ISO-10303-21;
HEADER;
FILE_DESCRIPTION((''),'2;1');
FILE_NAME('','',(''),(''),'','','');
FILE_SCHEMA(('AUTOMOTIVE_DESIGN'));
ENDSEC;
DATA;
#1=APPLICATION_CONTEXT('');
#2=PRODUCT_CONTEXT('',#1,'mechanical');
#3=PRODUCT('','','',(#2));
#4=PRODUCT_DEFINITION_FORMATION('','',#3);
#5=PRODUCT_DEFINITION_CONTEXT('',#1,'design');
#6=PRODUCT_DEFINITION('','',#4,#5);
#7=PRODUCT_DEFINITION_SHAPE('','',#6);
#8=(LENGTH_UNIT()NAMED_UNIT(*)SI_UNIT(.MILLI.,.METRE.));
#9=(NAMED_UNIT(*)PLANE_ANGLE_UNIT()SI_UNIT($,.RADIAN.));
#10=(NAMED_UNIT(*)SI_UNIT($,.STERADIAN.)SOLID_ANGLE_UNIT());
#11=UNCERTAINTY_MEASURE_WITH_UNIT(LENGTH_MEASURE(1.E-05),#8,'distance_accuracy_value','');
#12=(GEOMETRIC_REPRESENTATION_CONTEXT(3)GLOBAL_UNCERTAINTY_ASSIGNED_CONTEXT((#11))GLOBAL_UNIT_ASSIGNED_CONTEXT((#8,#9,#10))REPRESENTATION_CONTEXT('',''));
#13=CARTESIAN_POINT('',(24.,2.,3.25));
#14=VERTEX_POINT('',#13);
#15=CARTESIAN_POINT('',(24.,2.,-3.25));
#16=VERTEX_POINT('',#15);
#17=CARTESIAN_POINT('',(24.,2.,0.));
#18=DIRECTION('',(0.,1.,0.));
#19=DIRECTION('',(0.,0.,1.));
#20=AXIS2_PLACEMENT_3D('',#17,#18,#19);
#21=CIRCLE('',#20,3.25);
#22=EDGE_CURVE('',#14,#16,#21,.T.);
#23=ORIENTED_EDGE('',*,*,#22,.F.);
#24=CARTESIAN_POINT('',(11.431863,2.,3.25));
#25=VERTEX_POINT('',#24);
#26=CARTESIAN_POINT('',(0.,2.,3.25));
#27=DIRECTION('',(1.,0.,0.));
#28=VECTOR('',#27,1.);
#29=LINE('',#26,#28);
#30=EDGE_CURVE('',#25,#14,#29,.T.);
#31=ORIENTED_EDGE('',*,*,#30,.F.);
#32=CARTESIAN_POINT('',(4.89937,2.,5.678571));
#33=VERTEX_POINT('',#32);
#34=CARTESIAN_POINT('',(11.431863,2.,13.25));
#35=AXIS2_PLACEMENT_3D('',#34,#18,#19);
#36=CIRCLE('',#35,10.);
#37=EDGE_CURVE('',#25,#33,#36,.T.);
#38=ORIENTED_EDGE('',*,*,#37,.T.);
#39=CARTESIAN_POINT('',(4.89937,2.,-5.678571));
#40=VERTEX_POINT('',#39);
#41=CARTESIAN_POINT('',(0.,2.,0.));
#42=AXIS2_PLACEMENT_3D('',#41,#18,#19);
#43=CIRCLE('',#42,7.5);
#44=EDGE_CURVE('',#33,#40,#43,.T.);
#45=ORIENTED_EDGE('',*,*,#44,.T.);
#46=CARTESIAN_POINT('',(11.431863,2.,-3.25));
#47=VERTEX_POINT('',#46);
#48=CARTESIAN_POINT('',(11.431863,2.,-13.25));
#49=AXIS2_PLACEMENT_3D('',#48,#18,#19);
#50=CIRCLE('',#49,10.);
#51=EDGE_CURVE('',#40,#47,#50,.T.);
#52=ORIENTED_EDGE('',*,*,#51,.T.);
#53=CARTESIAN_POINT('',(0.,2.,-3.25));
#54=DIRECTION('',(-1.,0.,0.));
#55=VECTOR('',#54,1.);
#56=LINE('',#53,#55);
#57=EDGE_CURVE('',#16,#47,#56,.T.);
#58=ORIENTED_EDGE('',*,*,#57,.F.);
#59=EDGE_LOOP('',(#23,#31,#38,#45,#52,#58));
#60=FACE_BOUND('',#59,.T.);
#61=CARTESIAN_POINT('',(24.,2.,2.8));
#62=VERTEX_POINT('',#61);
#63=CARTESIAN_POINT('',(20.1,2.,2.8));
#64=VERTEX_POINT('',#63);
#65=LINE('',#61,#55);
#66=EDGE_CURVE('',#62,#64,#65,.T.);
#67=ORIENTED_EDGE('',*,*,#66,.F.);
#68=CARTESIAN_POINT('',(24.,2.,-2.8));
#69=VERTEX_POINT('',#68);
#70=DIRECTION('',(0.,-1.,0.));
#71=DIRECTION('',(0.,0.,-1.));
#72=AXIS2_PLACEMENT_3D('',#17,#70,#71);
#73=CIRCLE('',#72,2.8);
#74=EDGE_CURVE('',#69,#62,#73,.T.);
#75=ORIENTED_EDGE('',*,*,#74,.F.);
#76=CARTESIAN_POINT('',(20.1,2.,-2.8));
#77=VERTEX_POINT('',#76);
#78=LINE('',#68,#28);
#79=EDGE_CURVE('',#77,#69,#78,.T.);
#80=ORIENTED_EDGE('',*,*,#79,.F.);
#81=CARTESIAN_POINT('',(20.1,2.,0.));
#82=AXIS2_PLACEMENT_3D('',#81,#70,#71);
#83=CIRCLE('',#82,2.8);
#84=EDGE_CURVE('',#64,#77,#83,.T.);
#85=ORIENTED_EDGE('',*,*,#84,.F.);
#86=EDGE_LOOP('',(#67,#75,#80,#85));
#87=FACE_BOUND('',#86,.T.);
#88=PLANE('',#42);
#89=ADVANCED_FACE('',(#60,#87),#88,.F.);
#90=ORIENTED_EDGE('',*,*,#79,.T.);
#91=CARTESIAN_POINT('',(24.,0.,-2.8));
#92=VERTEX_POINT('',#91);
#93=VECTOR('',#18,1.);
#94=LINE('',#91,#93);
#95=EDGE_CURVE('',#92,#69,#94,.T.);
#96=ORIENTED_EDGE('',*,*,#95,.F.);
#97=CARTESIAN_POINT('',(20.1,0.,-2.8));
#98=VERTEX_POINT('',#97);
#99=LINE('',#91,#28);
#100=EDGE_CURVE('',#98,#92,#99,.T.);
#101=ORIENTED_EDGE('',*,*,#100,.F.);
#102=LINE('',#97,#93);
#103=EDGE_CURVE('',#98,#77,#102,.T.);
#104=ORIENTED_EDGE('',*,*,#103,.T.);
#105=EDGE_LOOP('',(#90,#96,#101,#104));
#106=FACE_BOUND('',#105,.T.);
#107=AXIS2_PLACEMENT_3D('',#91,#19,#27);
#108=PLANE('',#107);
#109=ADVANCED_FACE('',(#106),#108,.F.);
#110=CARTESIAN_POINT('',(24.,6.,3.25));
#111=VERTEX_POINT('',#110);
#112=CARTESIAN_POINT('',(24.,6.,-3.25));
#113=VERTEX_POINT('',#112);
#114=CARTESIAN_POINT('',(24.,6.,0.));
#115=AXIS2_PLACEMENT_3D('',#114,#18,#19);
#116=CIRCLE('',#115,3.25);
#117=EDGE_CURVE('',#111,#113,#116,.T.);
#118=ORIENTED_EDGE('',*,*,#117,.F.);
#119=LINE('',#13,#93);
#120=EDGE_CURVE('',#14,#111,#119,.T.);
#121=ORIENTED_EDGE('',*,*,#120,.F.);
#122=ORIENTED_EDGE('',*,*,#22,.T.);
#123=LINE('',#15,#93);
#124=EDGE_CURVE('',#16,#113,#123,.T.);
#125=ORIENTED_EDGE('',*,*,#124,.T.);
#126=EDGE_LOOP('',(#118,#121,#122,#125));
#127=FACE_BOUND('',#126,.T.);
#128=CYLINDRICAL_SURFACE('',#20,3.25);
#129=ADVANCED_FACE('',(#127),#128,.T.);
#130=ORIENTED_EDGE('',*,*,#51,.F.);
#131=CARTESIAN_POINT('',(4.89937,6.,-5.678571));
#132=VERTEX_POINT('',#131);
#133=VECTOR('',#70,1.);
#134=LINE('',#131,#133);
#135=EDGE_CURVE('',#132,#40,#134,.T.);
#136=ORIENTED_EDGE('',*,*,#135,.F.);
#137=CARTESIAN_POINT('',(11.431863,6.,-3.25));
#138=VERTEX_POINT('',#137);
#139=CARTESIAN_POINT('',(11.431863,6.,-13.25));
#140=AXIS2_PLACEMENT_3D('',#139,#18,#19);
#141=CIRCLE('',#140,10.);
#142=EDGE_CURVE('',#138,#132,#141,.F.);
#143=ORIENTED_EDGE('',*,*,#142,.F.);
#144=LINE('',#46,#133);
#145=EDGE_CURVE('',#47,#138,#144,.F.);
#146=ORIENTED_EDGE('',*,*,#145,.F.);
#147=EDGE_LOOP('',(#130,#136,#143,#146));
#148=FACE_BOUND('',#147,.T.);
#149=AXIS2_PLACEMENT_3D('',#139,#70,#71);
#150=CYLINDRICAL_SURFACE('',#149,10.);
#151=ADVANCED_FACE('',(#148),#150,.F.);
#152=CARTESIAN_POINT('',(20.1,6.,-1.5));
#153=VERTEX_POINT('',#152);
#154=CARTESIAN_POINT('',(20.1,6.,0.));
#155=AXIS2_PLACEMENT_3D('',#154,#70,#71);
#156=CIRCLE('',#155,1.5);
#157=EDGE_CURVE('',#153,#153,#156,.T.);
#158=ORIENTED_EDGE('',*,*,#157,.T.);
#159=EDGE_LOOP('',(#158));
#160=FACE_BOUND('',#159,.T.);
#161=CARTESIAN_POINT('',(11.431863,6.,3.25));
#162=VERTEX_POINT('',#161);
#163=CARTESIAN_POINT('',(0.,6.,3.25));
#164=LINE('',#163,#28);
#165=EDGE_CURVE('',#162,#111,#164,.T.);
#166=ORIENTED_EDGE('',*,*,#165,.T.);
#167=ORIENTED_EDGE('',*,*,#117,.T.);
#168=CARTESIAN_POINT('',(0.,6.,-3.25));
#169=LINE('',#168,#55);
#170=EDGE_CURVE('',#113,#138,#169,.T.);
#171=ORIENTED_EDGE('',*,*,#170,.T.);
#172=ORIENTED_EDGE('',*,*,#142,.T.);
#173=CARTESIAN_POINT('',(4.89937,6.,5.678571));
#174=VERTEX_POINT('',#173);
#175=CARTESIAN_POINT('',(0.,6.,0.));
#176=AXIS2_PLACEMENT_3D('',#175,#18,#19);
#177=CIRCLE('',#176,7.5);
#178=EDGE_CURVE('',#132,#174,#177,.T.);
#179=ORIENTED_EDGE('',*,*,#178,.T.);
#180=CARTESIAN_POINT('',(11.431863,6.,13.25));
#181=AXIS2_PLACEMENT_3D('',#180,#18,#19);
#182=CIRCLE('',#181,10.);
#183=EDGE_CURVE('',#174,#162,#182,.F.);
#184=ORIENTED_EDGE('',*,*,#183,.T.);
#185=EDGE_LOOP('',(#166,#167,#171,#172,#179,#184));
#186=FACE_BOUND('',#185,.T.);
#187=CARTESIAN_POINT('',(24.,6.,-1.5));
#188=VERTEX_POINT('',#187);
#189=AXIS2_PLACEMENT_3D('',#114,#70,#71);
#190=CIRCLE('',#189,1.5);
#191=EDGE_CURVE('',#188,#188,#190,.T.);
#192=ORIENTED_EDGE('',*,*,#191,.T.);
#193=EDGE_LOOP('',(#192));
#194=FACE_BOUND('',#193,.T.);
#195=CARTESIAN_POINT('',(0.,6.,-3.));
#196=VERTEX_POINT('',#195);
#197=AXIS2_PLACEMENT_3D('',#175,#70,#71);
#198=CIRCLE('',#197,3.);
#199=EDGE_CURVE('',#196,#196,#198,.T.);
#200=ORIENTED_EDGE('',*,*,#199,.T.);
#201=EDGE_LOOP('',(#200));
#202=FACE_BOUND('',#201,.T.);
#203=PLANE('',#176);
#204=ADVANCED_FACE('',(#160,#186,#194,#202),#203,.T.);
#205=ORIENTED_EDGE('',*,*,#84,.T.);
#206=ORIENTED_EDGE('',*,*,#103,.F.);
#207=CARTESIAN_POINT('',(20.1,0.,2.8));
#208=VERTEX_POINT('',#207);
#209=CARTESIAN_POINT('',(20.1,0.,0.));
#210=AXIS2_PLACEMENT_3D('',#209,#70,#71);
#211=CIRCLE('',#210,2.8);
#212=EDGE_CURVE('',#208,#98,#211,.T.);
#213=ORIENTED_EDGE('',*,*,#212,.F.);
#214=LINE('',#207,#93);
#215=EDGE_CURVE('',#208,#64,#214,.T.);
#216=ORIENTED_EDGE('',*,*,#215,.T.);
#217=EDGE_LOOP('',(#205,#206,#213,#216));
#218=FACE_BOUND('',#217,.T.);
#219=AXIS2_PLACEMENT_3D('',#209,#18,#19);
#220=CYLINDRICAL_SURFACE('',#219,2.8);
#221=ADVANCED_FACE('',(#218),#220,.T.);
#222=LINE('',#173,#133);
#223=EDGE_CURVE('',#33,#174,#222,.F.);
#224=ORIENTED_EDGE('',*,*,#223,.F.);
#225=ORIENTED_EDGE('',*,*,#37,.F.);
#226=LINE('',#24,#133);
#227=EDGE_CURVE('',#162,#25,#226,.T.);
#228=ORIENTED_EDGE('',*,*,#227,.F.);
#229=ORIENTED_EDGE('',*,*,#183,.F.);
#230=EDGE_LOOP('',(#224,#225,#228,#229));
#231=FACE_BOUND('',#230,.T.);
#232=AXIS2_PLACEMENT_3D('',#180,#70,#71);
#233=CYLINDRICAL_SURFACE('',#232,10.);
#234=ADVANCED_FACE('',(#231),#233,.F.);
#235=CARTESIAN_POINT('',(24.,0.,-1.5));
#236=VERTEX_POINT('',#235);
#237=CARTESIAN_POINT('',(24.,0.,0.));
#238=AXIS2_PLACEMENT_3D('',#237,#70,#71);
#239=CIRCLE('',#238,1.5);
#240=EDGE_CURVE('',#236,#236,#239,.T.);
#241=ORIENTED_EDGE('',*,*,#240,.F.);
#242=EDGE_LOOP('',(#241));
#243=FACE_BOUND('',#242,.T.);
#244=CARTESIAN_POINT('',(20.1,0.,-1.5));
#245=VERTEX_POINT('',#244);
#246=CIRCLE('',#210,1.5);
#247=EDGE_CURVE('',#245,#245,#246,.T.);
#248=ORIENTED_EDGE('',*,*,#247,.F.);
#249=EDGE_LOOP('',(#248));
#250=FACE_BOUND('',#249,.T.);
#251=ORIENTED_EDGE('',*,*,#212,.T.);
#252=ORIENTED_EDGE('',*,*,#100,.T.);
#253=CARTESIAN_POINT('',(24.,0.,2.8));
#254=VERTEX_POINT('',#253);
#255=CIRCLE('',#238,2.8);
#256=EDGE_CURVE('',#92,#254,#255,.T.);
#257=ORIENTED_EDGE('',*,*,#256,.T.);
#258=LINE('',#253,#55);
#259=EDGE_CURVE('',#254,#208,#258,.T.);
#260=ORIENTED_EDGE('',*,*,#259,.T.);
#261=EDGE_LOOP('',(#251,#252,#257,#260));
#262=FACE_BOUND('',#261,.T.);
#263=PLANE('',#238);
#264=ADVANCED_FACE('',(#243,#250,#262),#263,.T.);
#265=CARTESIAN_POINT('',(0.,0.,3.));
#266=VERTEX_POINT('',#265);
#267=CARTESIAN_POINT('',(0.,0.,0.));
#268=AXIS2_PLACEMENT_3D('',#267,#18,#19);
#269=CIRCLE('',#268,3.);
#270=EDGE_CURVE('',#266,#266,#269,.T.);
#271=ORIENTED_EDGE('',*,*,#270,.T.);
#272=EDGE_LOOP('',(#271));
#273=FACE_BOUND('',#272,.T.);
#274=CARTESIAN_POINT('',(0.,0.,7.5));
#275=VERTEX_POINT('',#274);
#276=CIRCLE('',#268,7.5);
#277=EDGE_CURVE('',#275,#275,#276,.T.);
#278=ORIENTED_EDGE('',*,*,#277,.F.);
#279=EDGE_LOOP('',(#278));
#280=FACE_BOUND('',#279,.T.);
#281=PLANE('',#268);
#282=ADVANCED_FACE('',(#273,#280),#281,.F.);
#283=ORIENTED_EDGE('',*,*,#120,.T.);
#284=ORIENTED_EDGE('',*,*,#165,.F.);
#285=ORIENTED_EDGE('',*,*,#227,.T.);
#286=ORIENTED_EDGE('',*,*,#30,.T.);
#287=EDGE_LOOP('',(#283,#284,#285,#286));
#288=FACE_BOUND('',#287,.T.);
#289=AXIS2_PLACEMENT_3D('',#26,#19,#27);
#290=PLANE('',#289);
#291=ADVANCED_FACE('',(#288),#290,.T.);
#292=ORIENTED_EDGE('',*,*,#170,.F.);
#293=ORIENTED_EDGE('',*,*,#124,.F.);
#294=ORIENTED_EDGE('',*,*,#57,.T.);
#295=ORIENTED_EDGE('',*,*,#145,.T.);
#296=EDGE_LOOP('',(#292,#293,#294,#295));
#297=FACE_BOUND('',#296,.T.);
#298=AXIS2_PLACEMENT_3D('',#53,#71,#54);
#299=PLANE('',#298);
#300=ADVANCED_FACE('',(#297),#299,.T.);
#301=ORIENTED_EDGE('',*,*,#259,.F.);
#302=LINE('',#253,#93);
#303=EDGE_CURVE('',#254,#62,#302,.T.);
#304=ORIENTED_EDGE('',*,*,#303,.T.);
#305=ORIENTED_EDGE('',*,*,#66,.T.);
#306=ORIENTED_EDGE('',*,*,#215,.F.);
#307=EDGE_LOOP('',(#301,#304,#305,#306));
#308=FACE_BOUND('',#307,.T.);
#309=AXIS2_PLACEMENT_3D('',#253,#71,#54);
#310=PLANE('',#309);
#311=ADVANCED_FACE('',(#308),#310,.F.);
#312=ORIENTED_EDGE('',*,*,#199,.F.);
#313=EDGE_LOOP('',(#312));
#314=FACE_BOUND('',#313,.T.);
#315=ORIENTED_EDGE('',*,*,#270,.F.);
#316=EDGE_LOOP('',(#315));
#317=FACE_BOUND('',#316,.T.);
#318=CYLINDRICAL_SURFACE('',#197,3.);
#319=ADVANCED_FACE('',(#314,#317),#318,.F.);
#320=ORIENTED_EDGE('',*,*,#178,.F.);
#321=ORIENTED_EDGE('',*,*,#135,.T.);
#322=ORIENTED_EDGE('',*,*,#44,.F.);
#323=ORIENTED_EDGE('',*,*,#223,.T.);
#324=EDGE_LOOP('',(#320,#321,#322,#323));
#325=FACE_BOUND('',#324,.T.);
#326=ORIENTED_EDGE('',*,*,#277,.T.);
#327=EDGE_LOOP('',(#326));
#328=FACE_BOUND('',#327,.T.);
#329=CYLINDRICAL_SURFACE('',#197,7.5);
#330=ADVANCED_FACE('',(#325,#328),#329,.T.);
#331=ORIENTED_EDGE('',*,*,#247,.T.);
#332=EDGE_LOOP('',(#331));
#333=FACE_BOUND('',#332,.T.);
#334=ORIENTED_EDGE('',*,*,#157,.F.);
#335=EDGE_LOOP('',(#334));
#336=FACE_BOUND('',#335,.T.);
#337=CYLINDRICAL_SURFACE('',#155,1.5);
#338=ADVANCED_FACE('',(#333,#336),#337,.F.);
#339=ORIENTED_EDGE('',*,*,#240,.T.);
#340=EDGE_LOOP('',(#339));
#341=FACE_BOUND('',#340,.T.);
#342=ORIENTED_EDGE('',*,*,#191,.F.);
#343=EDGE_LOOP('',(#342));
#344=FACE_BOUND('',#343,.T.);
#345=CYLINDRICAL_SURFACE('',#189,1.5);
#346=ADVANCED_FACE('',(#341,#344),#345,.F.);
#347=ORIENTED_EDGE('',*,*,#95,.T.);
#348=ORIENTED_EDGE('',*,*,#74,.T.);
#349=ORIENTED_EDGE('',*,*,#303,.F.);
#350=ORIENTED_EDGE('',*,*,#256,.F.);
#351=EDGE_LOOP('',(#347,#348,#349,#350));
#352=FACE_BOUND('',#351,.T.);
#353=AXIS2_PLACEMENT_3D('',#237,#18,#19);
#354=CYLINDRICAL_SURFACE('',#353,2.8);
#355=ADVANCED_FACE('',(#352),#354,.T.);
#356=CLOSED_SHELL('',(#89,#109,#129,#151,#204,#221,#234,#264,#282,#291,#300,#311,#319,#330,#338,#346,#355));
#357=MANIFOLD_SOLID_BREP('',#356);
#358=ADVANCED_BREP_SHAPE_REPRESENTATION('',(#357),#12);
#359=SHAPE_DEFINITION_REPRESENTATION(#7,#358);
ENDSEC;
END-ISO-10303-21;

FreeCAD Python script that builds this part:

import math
import FreeCAD as App
import Part
import Sketcher

V = App.Vector
Q = App.Units.Quantity


def edges_at(feature, points):
    """Names of the edges that pass closest to the given points."""
    edges = feature.Shape.Edges
    near = lambda p: min(range(len(edges)), key=lambda i: edges[i].distToShape(Part.Vertex(*p))[0])
    return sorted({f"Edge{near(p) + 1}" for p in points})

doc = App.newDocument("Part")
params = doc.addObject("Spreadsheet::Sheet", "Params")
for row, (alias, value) in enumerate([
    ("sketch1_diameter", "15 mm"),
    ("pad1_length", "6 mm"),
    ("sketch2_width", "24 mm"),
    ("sketch2_radius", "3.25 mm"),
    ("pad2_length", "4 mm"),
    ("sketch3_radius", "2.8 mm"),
    ("sketch3_width", "3.9 mm"),
    ("pad3_length", "2 mm"),
    ("sketch4_diameter", "3 mm"),
    ("sketch4_diameter2", "6 mm"),
    ("fillet_radius", "10 mm"),
], start=1):
    params.set(f"A{row}", alias)
    params.set(f"B{row}", "=" + value)
    params.setAlias(f"B{row}", alias)

body = doc.addObject("PartDesign::Body", "Body")

sketch1 = body.newObject("Sketcher::SketchObject", "Sketch")
sketch1.AttachmentSupport = (doc.getObject("XZ_Plane"), [""])
sketch1.MapMode = "FlatFace"
sketch1.addGeometry(Part.Circle(V(0, 0, 0), V(0, 0, 1), 8), False)
sketch1.addConstraint(Sketcher.Constraint("Coincident", 0, 3, -1, 1))
sketch1.addConstraint(Sketcher.Constraint("Diameter", 0, Q("15 mm")))
sketch1.setExpression("Constraints[1]", "Params.sketch1_diameter")
pad1 = body.newObject("PartDesign::Pad", "Pad")
pad1.Profile = sketch1
pad1.setExpression("Length", "Params.pad1_length")
pad1.Reversed = True

sketch2 = body.newObject("Sketcher::SketchObject", "Sketch001")
sketch2.AttachmentSupport = (doc.getObject("XZ_Plane"), [""])
sketch2.MapMode = "FlatFace"
sketch2.AttachmentOffset = App.Placement(V(0, 0, -6), App.Rotation())
sketch2.addGeometry(Part.LineSegment(V(24, -3.2, 0), V(0, -3.2, 0)), False)
sketch2.addGeometry(Part.ArcOfCircle(Part.Circle(V(0, 0, 0), V(0, 0, 1), 3.2), math.radians(90), math.radians(270)), False)
sketch2.addGeometry(Part.LineSegment(V(0, 3.2, 0), V(24, 3.2, 0)), False)
sketch2.addGeometry(Part.ArcOfCircle(Part.Circle(V(24, 0, 0), V(0, 0, 1), 3.2), math.radians(-90), math.radians(90)), False)
sketch2.addConstraint(Sketcher.Constraint("Tangent", 0, 2, 1, 2))
sketch2.addConstraint(Sketcher.Constraint("Tangent", 1, 1, 2, 1))
sketch2.addConstraint(Sketcher.Constraint("Tangent", 2, 2, 3, 2))
sketch2.addConstraint(Sketcher.Constraint("Tangent", 3, 1, 0, 1))
sketch2.addConstraint(Sketcher.Constraint("Horizontal", 0))
sketch2.addConstraint(Sketcher.Constraint("Horizontal", 2))
sketch2.addConstraint(Sketcher.Constraint("Coincident", 1, 3, -1, 1))
sketch2.addConstraint(Sketcher.Constraint("DistanceX", 0, 2, 0, 1, Q("24 mm")))
sketch2.addConstraint(Sketcher.Constraint("Radius", 1, Q("3.25 mm")))
sketch2.setExpression("Constraints[7]", "Params.sketch2_width")
sketch2.setExpression("Constraints[8]", "Params.sketch2_radius")
pad2 = body.newObject("PartDesign::Pad", "Pad001")
pad2.Profile = sketch2
pad2.setExpression("Length", "Params.pad2_length")

sketch3 = body.newObject("Sketcher::SketchObject", "Sketch002")
sketch3.AttachmentSupport = (doc.getObject("XZ_Plane"), [""])
sketch3.MapMode = "FlatFace"
sketch3.AttachmentOffset = App.Placement(V(0, 0, -2), App.Rotation())
sketch3.addGeometry(Part.LineSegment(V(20.1, -2.8, 0), V(24, -2.8, 0)), False)
sketch3.addGeometry(Part.ArcOfCircle(Part.Circle(V(24, 0, 0), V(0, 0, 1), 2.8), math.radians(-90), math.radians(90)), False)
sketch3.addGeometry(Part.LineSegment(V(24, 2.8, 0), V(20.1, 2.8, 0)), False)
sketch3.addGeometry(Part.ArcOfCircle(Part.Circle(V(20.1, 0, 0), V(0, 0, 1), 2.8), math.radians(90), math.radians(270)), False)
sketch3.addConstraint(Sketcher.Constraint("Tangent", 0, 2, 1, 1))
sketch3.addConstraint(Sketcher.Constraint("Tangent", 1, 2, 2, 1))
sketch3.addConstraint(Sketcher.Constraint("Tangent", 2, 2, 3, 1))
sketch3.addConstraint(Sketcher.Constraint("Tangent", 3, 2, 0, 1))
sketch3.addConstraint(Sketcher.Constraint("Horizontal", 0))
sketch3.addConstraint(Sketcher.Constraint("Horizontal", 2))
sketch3.addConstraint(Sketcher.Constraint("PointOnObject", 1, 3, -1))
sketch3.addConstraint(Sketcher.Constraint("Radius", 1, Q("2.8 mm")))
sketch3.addConstraint(Sketcher.Constraint("DistanceX", 0, 1, 0, 2, Q("3.9 mm")))
sketch3.addConstraint(Sketcher.Constraint("DistanceX", -1, 1, 1, 3, Q("24 mm")))
sketch3.setExpression("Constraints[7]", "Params.sketch3_radius")
sketch3.setExpression("Constraints[8]", "Params.sketch3_width")
pad3 = body.newObject("PartDesign::Pad", "Pad002")
pad3.Profile = sketch3
pad3.setExpression("Length", "Params.pad3_length")

sketch4 = body.newObject("Sketcher::SketchObject", "Sketch003")
sketch4.AttachmentSupport = (doc.getObject("XZ_Plane"), [""])
sketch4.MapMode = "FlatFace"
sketch4.addGeometry(Part.Circle(V(24, 0, 0), V(0, 0, 1), 1.5), False)
sketch4.addGeometry(Part.Circle(V(20.1, 0, 0), V(0, 0, 1), 1.5), False)
sketch4.addGeometry(Part.Circle(V(0, 0, 0), V(0, 0, 1), 3), False)
sketch4.addConstraint(Sketcher.Constraint("Coincident", 2, 3, -1, 1))
sketch4.addConstraint(Sketcher.Constraint("Equal", 0, 1))
sketch4.addConstraint(Sketcher.Constraint("PointOnObject", 0, 3, -1))
sketch4.addConstraint(Sketcher.Constraint("PointOnObject", 1, 3, -1))
sketch4.addConstraint(Sketcher.Constraint("Diameter", 0, Q("3 mm")))
sketch4.addConstraint(Sketcher.Constraint("Diameter", 2, Q("6 mm")))
sketch4.addConstraint(Sketcher.Constraint("DistanceX", -1, 1, 0, 3, Q("24 mm")))
sketch4.addConstraint(Sketcher.Constraint("DistanceX", -1, 1, 1, 3, Q("20.1 mm")))
sketch4.setExpression("Constraints[4]", "Params.sketch4_diameter")
sketch4.setExpression("Constraints[5]", "Params.sketch4_diameter2")
pocket1 = body.newObject("PartDesign::Pocket", "Pocket")
pocket1.Profile = sketch4
pocket1.Type = "ThroughAll"
pocket1.Midplane = True
doc.recompute()

fillet = body.newObject("PartDesign::Fillet", "Fillet")
fillet.Base = (pocket1, edges_at(pocket1, [(6.759, 4, -3.25), (6.759, 4, 3.25)]))
fillet.setExpression("Radius", "Params.fillet_radius")

doc.recompute()
